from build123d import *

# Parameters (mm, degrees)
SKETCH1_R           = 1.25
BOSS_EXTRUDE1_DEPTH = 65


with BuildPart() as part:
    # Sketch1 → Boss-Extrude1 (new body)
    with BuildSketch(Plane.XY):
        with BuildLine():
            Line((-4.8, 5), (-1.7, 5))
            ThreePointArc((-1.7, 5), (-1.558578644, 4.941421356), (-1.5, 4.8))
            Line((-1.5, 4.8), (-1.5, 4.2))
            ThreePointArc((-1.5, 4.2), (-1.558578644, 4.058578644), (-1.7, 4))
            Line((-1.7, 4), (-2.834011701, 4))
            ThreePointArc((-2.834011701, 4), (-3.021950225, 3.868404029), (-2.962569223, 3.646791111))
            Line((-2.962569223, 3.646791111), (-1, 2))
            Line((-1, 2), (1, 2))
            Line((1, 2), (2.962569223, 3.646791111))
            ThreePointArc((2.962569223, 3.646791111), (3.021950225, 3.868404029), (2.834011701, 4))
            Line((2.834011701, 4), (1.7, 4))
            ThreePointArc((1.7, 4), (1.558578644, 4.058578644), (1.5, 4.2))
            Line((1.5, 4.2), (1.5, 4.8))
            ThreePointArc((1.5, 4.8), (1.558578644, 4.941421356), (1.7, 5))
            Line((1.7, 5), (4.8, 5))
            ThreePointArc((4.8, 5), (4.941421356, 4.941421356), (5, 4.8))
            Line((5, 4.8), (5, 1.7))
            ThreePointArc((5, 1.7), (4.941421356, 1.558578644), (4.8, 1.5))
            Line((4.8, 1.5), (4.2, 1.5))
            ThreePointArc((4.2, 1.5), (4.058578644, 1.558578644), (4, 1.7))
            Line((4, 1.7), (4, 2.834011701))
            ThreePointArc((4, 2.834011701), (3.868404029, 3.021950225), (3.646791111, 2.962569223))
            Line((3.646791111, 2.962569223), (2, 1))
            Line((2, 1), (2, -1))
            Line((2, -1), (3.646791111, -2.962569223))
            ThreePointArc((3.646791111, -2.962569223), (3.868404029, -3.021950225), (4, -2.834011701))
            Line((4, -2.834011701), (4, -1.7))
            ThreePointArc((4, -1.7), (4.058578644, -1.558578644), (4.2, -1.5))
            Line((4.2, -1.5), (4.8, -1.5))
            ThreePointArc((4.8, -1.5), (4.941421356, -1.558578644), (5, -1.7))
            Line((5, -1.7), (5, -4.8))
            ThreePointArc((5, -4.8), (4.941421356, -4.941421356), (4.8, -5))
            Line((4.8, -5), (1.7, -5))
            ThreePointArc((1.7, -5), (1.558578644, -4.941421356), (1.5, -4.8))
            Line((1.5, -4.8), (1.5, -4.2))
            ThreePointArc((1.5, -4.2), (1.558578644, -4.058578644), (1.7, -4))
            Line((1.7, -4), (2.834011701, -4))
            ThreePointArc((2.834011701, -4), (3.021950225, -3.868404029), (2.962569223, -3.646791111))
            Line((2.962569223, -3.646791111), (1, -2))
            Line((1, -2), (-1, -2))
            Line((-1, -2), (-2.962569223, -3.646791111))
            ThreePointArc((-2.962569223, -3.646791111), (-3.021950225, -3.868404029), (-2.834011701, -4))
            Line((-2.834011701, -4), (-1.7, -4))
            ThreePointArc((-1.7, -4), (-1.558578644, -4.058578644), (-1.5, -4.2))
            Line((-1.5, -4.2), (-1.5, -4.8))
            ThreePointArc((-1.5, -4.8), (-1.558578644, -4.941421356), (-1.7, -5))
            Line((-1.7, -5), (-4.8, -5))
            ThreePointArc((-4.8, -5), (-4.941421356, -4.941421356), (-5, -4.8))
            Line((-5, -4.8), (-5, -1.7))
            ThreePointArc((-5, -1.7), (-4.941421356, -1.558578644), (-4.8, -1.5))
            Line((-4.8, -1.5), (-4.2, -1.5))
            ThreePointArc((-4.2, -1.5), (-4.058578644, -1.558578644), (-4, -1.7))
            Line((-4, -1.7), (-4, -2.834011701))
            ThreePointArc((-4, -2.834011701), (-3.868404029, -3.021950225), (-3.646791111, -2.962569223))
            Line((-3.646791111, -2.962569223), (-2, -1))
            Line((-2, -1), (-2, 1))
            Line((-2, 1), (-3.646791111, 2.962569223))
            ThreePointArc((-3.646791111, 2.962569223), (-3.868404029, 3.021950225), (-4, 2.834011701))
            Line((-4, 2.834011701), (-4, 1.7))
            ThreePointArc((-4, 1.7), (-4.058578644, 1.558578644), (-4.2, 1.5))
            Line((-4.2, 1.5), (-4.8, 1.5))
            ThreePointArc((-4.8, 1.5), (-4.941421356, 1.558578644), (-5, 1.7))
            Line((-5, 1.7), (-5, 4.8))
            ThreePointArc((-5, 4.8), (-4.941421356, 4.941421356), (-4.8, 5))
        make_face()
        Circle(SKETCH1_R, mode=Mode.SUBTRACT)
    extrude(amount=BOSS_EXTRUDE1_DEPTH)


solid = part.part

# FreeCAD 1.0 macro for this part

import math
import FreeCAD as App
import Part
import Sketcher

V = App.Vector
Q = App.Units.Quantity

doc = App.newDocument("Part")
body = doc.addObject("PartDesign::Body", "Body")

sketch1 = body.newObject("Sketcher::SketchObject", "Sketch")
sketch1.AttachmentSupport = (doc.getObject("XY_Plane"), [""])
sketch1.MapMode = "FlatFace"
sketch1.addGeometry([
    Part.LineSegment(V(-1.7, 5, 0), V(-4.8, 5, 0)),
    Part.ArcOfCircle(Part.Circle(V(-4.8, 4.8, 0), V(0, 0, 1), 0.2), math.radians(90), math.radians(180)),
    Part.LineSegment(V(-5, 4.8, 0), V(-5, 1.7, 0)),
    Part.ArcOfCircle(Part.Circle(V(-4.8, 1.7, 0), V(0, 0, 1), 0.2), math.radians(-180), math.radians(-90)),
    Part.LineSegment(V(-4.8, 1.5, 0), V(-4.2, 1.5, 0)),
    Part.ArcOfCircle(Part.Circle(V(-4.2, 1.7, 0), V(0, 0, 1), 0.2), math.radians(-90), math.radians(0)),
    Part.LineSegment(V(-4, 1.7, 0), V(-4, 2.834012, 0)),
    Part.ArcOfCircle(Part.Circle(V(-3.8, 2.834012, 0), V(0, 0, 1), 0.2), math.radians(40), math.radians(180)),
    Part.LineSegment(V(-3.646791, 2.962569, 0), V(-2, 1, 0)),
    Part.LineSegment(V(-2, 1, 0), V(-2, -1, 0)),
    Part.LineSegment(V(-2, -1, 0), V(-3.646791, -2.962569, 0)),
    Part.ArcOfCircle(Part.Circle(V(-3.8, -2.834012, 0), V(0, 0, 1), 0.2), math.radians(180), math.radians(320)),
    Part.LineSegment(V(-4, -2.834012, 0), V(-4, -1.7, 0)),
    Part.ArcOfCircle(Part.Circle(V(-4.2, -1.7, 0), V(0, 0, 1), 0.2), math.radians(0), math.radians(90)),
    Part.LineSegment(V(-4.2, -1.5, 0), V(-4.8, -1.5, 0)),
    Part.ArcOfCircle(Part.Circle(V(-4.8, -1.7, 0), V(0, 0, 1), 0.2), math.radians(90), math.radians(180)),
    Part.LineSegment(V(-5, -1.7, 0), V(-5, -4.8, 0)),
    Part.ArcOfCircle(Part.Circle(V(-4.8, -4.8, 0), V(0, 0, 1), 0.2), math.radians(-180), math.radians(-90)),
    Part.LineSegment(V(-4.8, -5, 0), V(-1.7, -5, 0)),
    Part.ArcOfCircle(Part.Circle(V(-1.7, -4.8, 0), V(0, 0, 1), 0.2), math.radians(-90), math.radians(0)),
    Part.LineSegment(V(-1.5, -4.8, 0), V(-1.5, -4.2, 0)),
    Part.ArcOfCircle(Part.Circle(V(-1.7, -4.2, 0), V(0, 0, 1), 0.2), math.radians(0), math.radians(90)),
    Part.LineSegment(V(-1.7, -4, 0), V(-2.834012, -4, 0)),
    Part.ArcOfCircle(Part.Circle(V(-2.834012, -3.8, 0), V(0, 0, 1), 0.2), math.radians(130), math.radians(270)),
    Part.LineSegment(V(-2.962569, -3.646791, 0), V(-1, -2, 0)),
    Part.LineSegment(V(-1, -2, 0), V(1, -2, 0)),
    Part.LineSegment(V(1, -2, 0), V(2.962569, -3.646791, 0)),
    Part.ArcOfCircle(Part.Circle(V(2.834012, -3.8, 0), V(0, 0, 1), 0.2), math.radians(-90), math.radians(50)),
    Part.LineSegment(V(2.834012, -4, 0), V(1.7, -4, 0)),
    Part.ArcOfCircle(Part.Circle(V(1.7, -4.2, 0), V(0, 0, 1), 0.2), math.radians(90), math.radians(180)),
    Part.LineSegment(V(1.5, -4.2, 0), V(1.5, -4.8, 0)),
    Part.ArcOfCircle(Part.Circle(V(1.7, -4.8, 0), V(0, 0, 1), 0.2), math.radians(-180), math.radians(-90)),
    Part.LineSegment(V(1.7, -5, 0), V(4.8, -5, 0)),
    Part.ArcOfCircle(Part.Circle(V(4.8, -4.8, 0), V(0, 0, 1), 0.2), math.radians(-90), math.radians(0)),
    Part.LineSegment(V(5, -4.8, 0), V(5, -1.7, 0)),
    Part.ArcOfCircle(Part.Circle(V(4.8, -1.7, 0), V(0, 0, 1), 0.2), math.radians(0), math.radians(90)),
    Part.LineSegment(V(4.8, -1.5, 0), V(4.2, -1.5, 0)),
    Part.ArcOfCircle(Part.Circle(V(4.2, -1.7, 0), V(0, 0, 1), 0.2), math.radians(90), math.radians(180)),
    Part.LineSegment(V(4, -1.7, 0), V(4, -2.834012, 0)),
    Part.ArcOfCircle(Part.Circle(V(3.8, -2.834012, 0), V(0, 0, 1), 0.2), math.radians(-140), math.radians(0)),
    Part.LineSegment(V(3.646791, -2.962569, 0), V(2, -1, 0)),
    Part.LineSegment(V(2, -1, 0), V(2, 1, 0)),
    Part.LineSegment(V(2, 1, 0), V(3.646791, 2.962569, 0)),
    Part.ArcOfCircle(Part.Circle(V(3.8, 2.834012, 0), V(0, 0, 1), 0.2), math.radians(0), math.radians(140)),
    Part.LineSegment(V(4, 2.834012, 0), V(4, 1.7, 0)),
    Part.ArcOfCircle(Part.Circle(V(4.2, 1.7, 0), V(0, 0, 1), 0.2), math.radians(-180), math.radians(-90)),
    Part.LineSegment(V(4.2, 1.5, 0), V(4.8, 1.5, 0)),
    Part.ArcOfCircle(Part.Circle(V(4.8, 1.7, 0), V(0, 0, 1), 0.2), math.radians(-90), math.radians(0)),
    Part.LineSegment(V(5, 1.7, 0), V(5, 4.8, 0)),
    Part.ArcOfCircle(Part.Circle(V(4.8, 4.8, 0), V(0, 0, 1), 0.2), math.radians(0), math.radians(90)),
    Part.LineSegment(V(4.8, 5, 0), V(1.7, 5, 0)),
    Part.ArcOfCircle(Part.Circle(V(1.7, 4.8, 0), V(0, 0, 1), 0.2), math.radians(90), math.radians(180)),
    Part.LineSegment(V(1.5, 4.8, 0), V(1.5, 4.2, 0)),
    Part.ArcOfCircle(Part.Circle(V(1.7, 4.2, 0), V(0, 0, 1), 0.2), math.radians(-180), math.radians(-90)),
    Part.LineSegment(V(1.7, 4, 0), V(2.834012, 4, 0)),
    Part.ArcOfCircle(Part.Circle(V(2.834012, 3.8, 0), V(0, 0, 1), 0.2), math.radians(-50), math.radians(90)),
    Part.LineSegment(V(2.962569, 3.646791, 0), V(1, 2, 0)),
    Part.LineSegment(V(1, 2, 0), V(-1, 2, 0)),
    Part.LineSegment(V(-1, 2, 0), V(-2.962569, 3.646791, 0)),
    Part.ArcOfCircle(Part.Circle(V(-2.834012, 3.8, 0), V(0, 0, 1), 0.2), math.radians(90), math.radians(230)),
    Part.LineSegment(V(-2.834012, 4, 0), V(-1.7, 4, 0)),
    Part.ArcOfCircle(Part.Circle(V(-1.7, 4.2, 0), V(0, 0, 1), 0.2), math.radians(-90), math.radians(0)),
    Part.LineSegment(V(-1.5, 4.2, 0), V(-1.5, 4.8, 0)),
    Part.ArcOfCircle(Part.Circle(V(-1.7, 4.8, 0), V(0, 0, 1), 0.2), math.radians(0), math.radians(90)),
    Part.Circle(V(0, 0, 0), V(0, 0, 1), 1.25),
], False)
sketch1.addConstraint([
    Sketcher.Constraint("Tangent", 0, 2, 1, 1),
    Sketcher.Constraint("Tangent", 1, 2, 2, 1),
    Sketcher.Constraint("Tangent", 2, 2, 3, 1),
    Sketcher.Constraint("Tangent", 3, 2, 4, 1),
    Sketcher.Constraint("Tangent", 4, 2, 5, 1),
    Sketcher.Constraint("Tangent", 5, 2, 6, 1),
    Sketcher.Constraint("Tangent", 6, 2, 7, 2),
    Sketcher.Constraint("Tangent", 7, 1, 8, 1),
    Sketcher.Constraint("Coincident", 8, 2, 9, 1),
    Sketcher.Constraint("Coincident", 9, 2, 10, 1),
    Sketcher.Constraint("Tangent", 10, 2, 11, 2),
    Sketcher.Constraint("Tangent", 11, 1, 12, 1),
    Sketcher.Constraint("Tangent", 12, 2, 13, 1),
    Sketcher.Constraint("Tangent", 13, 2, 14, 1),
    Sketcher.Constraint("Tangent", 14, 2, 15, 1),
    Sketcher.Constraint("Tangent", 15, 2, 16, 1),
    Sketcher.Constraint("Tangent", 16, 2, 17, 1),
    Sketcher.Constraint("Tangent", 17, 2, 18, 1),
    Sketcher.Constraint("Tangent", 18, 2, 19, 1),
    Sketcher.Constraint("Tangent", 19, 2, 20, 1),
    Sketcher.Constraint("Tangent", 20, 2, 21, 1),
    Sketcher.Constraint("Tangent", 21, 2, 22, 1),
    Sketcher.Constraint("Tangent", 22, 2, 23, 2),
    Sketcher.Constraint("Tangent", 23, 1, 24, 1),
    Sketcher.Constraint("Coincident", 24, 2, 25, 1),
    Sketcher.Constraint("Coincident", 25, 2, 26, 1),
    Sketcher.Constraint("Tangent", 26, 2, 27, 2),
    Sketcher.Constraint("Tangent", 27, 1, 28, 1),
    Sketcher.Constraint("Tangent", 28, 2, 29, 1),
    Sketcher.Constraint("Tangent", 29, 2, 30, 1),
    Sketcher.Constraint("Tangent", 30, 2, 31, 1),
    Sketcher.Constraint("Tangent", 31, 2, 32, 1),
    Sketcher.Constraint("Tangent", 32, 2, 33, 1),
    Sketcher.Constraint("Tangent", 33, 2, 34, 1),
    Sketcher.Constraint("Tangent", 34, 2, 35, 1),
    Sketcher.Constraint("Tangent", 35, 2, 36, 1),
    Sketcher.Constraint("Tangent", 36, 2, 37, 1),
    Sketcher.Constraint("Tangent", 37, 2, 38, 1),
    Sketcher.Constraint("Tangent", 38, 2, 39, 2),
    Sketcher.Constraint("Tangent", 39, 1, 40, 1),
    Sketcher.Constraint("Coincident", 40, 2, 41, 1),
    Sketcher.Constraint("Coincident", 41, 2, 42, 1),
    Sketcher.Constraint("Tangent", 42, 2, 43, 2),
    Sketcher.Constraint("Tangent", 43, 1, 44, 1),
    Sketcher.Constraint("Tangent", 44, 2, 45, 1),
    Sketcher.Constraint("Tangent", 45, 2, 46, 1),
    Sketcher.Constraint("Tangent", 46, 2, 47, 1),
    Sketcher.Constraint("Tangent", 47, 2, 48, 1),
    Sketcher.Constraint("Tangent", 48, 2, 49, 1),
    Sketcher.Constraint("Tangent", 49, 2, 50, 1),
    Sketcher.Constraint("Tangent", 50, 2, 51, 1),
    Sketcher.Constraint("Tangent", 51, 2, 52, 1),
    Sketcher.Constraint("Tangent", 52, 2, 53, 1),
    Sketcher.Constraint("Tangent", 53, 2, 54, 1),
    Sketcher.Constraint("Tangent", 54, 2, 55, 2),
    Sketcher.Constraint("Tangent", 55, 1, 56, 1),
    Sketcher.Constraint("Coincident", 56, 2, 57, 1),
    Sketcher.Constraint("Coincident", 57, 2, 58, 1),
    Sketcher.Constraint("Tangent", 58, 2, 59, 2),
    Sketcher.Constraint("Tangent", 59, 1, 60, 1),
    Sketcher.Constraint("Tangent", 60, 2, 61, 1),
    Sketcher.Constraint("Tangent", 61, 2, 62, 1),
    Sketcher.Constraint("Tangent", 62, 2, 63, 1),
    Sketcher.Constraint("Tangent", 63, 2, 0, 1),
    Sketcher.Constraint("Horizontal", 0),
    Sketcher.Constraint("Vertical", 2),
    Sketcher.Constraint("Horizontal", 4),
    Sketcher.Constraint("Vertical", 6),
    Sketcher.Constraint("Vertical", 9),
    Sketcher.Constraint("Vertical", 12),
    Sketcher.Constraint("Horizontal", 14),
    Sketcher.Constraint("Vertical", 16),
    Sketcher.Constraint("Horizontal", 18),
    Sketcher.Constraint("Vertical", 20),
    Sketcher.Constraint("Horizontal", 22),
    Sketcher.Constraint("Horizontal", 25),
    Sketcher.Constraint("Horizontal", 28),
    Sketcher.Constraint("Vertical", 30),
    Sketcher.Constraint("Horizontal", 32),
    Sketcher.Constraint("Vertical", 34),
    Sketcher.Constraint("Horizontal", 36),
    Sketcher.Constraint("Vertical", 38),
    Sketcher.Constraint("Vertical", 41),
    Sketcher.Constraint("Vertical", 44),
    Sketcher.Constraint("Horizontal", 46),
    Sketcher.Constraint("Vertical", 48),
    Sketcher.Constraint("Horizontal", 50),
    Sketcher.Constraint("Vertical", 52),
    Sketcher.Constraint("Horizontal", 54),
    Sketcher.Constraint("Horizontal", 57),
    Sketcher.Constraint("Horizontal", 60),
    Sketcher.Constraint("Vertical", 62),
    Sketcher.Constraint("Coincident", 64, 3, -1, 1),
    Sketcher.Constraint("Equal", 1, 3),
    Sketcher.Constraint("Equal", 3, 5),
    Sketcher.Constraint("Equal", 5, 7),
    Sketcher.Constraint("Equal", 7, 11),
    Sketcher.Constraint("Equal", 11, 13),
    Sketcher.Constraint("Equal", 13, 15),
    Sketcher.Constraint("Equal", 15, 17),
    Sketcher.Constraint("Equal", 17, 19),
    Sketcher.Constraint("Equal", 19, 21),
    Sketcher.Constraint("Equal", 21, 23),
    Sketcher.Constraint("Equal", 23, 27),
    Sketcher.Constraint("Equal", 27, 29),
    Sketcher.Constraint("Equal", 29, 31),
    Sketcher.Constraint("Equal", 31, 33),
    Sketcher.Constraint("Equal", 33, 35),
    Sketcher.Constraint("Equal", 35, 37),
    Sketcher.Constraint("Equal", 37, 39),
    Sketcher.Constraint("Equal", 39, 43),
    Sketcher.Constraint("Equal", 43, 45),
    Sketcher.Constraint("Equal", 45, 47),
    Sketcher.Constraint("Equal", 47, 49),
    Sketcher.Constraint("Equal", 49, 51),
    Sketcher.Constraint("Equal", 51, 53),
    Sketcher.Constraint("Equal", 53, 55),
    Sketcher.Constraint("Equal", 55, 59),
    Sketcher.Constraint("Equal", 59, 61),
    Sketcher.Constraint("Equal", 61, 63),
    Sketcher.Constraint("Symmetric", 1, 3, 33, 3, -1, 1),
    Sketcher.Constraint("Symmetric", 5, 3, 37, 3, -1, 1),
    Sketcher.Constraint("Symmetric", 11, 3, 43, 3, -1, 1),
    Sketcher.Constraint("Symmetric", 15, 3, 47, 3, -1, 1),
    Sketcher.Constraint("Symmetric", 19, 3, 51, 3, -1, 1),
    Sketcher.Constraint("Symmetric", 23, 3, 55, 3, -1, 1),
    Sketcher.Constraint("Symmetric", 27, 3, 59, 3, -1, 1),
    Sketcher.Constraint("Symmetric", 7, 1, 39, 1, -1, 1),
    Sketcher.Constraint("Symmetric", 9, 2, 41, 2, -1, 1),
    Sketcher.Constraint("Symmetric", 24, 2, 56, 2, -1, 1),
    Sketcher.Constraint("Symmetric", 23, 3, 27, 3, -2),
    Sketcher.Constraint("Symmetric", 19, 3, 31, 3, -2),
    Sketcher.Constraint("Symmetric", 15, 3, 35, 3, -2),
    Sketcher.Constraint("Symmetric", 11, 3, 39, 3, -2),
    Sketcher.Constraint("Perpendicular", 8, 24),
    Sketcher.Constraint("Perpendicular", 10, 26),
    Sketcher.Constraint("Perpendicular", 42, 58),
    Sketcher.Constraint("Horizontal", 23, 1, 26, 2),
    Sketcher.Constraint("Vertical", 21, 3, 61, 3),
    Sketcher.Constraint("Equal", 50, 2),
    Sketcher.Constraint("Equal", 60, 6),
    Sketcher.Constraint("Equal", 57, 9),
    Sketcher.Constraint("Equal", 46, 20),
    Sketcher.Constraint("Equal", 10, 24),
    Sketcher.Constraint("Diameter", 64, Q("2.5 mm")),
    Sketcher.Constraint("Radius", 1, Q("0.2 mm")),
    Sketcher.Constraint("DistanceX", 25, 1, 25, 2, Q("2 mm")),
    Sketcher.Constraint("Angle", 8, Q("-50 deg")),
    Sketcher.Constraint("DistanceX", 0, 2, 0, 1, Q("3.1 mm")),
    Sketcher.Constraint("DistanceX", 4, 1, 4, 2, Q("0.6 mm")),
    Sketcher.Constraint("DistanceY", -1, 1, 0, 2, Q("5 mm")),
    Sketcher.Constraint("DistanceX", 8, 2, -1, 1, Q("2 mm")),
])
pad1 = body.newObject("PartDesign::Pad", "Pad")
pad1.Profile = sketch1
pad1.Length = 65

doc.recompute()
